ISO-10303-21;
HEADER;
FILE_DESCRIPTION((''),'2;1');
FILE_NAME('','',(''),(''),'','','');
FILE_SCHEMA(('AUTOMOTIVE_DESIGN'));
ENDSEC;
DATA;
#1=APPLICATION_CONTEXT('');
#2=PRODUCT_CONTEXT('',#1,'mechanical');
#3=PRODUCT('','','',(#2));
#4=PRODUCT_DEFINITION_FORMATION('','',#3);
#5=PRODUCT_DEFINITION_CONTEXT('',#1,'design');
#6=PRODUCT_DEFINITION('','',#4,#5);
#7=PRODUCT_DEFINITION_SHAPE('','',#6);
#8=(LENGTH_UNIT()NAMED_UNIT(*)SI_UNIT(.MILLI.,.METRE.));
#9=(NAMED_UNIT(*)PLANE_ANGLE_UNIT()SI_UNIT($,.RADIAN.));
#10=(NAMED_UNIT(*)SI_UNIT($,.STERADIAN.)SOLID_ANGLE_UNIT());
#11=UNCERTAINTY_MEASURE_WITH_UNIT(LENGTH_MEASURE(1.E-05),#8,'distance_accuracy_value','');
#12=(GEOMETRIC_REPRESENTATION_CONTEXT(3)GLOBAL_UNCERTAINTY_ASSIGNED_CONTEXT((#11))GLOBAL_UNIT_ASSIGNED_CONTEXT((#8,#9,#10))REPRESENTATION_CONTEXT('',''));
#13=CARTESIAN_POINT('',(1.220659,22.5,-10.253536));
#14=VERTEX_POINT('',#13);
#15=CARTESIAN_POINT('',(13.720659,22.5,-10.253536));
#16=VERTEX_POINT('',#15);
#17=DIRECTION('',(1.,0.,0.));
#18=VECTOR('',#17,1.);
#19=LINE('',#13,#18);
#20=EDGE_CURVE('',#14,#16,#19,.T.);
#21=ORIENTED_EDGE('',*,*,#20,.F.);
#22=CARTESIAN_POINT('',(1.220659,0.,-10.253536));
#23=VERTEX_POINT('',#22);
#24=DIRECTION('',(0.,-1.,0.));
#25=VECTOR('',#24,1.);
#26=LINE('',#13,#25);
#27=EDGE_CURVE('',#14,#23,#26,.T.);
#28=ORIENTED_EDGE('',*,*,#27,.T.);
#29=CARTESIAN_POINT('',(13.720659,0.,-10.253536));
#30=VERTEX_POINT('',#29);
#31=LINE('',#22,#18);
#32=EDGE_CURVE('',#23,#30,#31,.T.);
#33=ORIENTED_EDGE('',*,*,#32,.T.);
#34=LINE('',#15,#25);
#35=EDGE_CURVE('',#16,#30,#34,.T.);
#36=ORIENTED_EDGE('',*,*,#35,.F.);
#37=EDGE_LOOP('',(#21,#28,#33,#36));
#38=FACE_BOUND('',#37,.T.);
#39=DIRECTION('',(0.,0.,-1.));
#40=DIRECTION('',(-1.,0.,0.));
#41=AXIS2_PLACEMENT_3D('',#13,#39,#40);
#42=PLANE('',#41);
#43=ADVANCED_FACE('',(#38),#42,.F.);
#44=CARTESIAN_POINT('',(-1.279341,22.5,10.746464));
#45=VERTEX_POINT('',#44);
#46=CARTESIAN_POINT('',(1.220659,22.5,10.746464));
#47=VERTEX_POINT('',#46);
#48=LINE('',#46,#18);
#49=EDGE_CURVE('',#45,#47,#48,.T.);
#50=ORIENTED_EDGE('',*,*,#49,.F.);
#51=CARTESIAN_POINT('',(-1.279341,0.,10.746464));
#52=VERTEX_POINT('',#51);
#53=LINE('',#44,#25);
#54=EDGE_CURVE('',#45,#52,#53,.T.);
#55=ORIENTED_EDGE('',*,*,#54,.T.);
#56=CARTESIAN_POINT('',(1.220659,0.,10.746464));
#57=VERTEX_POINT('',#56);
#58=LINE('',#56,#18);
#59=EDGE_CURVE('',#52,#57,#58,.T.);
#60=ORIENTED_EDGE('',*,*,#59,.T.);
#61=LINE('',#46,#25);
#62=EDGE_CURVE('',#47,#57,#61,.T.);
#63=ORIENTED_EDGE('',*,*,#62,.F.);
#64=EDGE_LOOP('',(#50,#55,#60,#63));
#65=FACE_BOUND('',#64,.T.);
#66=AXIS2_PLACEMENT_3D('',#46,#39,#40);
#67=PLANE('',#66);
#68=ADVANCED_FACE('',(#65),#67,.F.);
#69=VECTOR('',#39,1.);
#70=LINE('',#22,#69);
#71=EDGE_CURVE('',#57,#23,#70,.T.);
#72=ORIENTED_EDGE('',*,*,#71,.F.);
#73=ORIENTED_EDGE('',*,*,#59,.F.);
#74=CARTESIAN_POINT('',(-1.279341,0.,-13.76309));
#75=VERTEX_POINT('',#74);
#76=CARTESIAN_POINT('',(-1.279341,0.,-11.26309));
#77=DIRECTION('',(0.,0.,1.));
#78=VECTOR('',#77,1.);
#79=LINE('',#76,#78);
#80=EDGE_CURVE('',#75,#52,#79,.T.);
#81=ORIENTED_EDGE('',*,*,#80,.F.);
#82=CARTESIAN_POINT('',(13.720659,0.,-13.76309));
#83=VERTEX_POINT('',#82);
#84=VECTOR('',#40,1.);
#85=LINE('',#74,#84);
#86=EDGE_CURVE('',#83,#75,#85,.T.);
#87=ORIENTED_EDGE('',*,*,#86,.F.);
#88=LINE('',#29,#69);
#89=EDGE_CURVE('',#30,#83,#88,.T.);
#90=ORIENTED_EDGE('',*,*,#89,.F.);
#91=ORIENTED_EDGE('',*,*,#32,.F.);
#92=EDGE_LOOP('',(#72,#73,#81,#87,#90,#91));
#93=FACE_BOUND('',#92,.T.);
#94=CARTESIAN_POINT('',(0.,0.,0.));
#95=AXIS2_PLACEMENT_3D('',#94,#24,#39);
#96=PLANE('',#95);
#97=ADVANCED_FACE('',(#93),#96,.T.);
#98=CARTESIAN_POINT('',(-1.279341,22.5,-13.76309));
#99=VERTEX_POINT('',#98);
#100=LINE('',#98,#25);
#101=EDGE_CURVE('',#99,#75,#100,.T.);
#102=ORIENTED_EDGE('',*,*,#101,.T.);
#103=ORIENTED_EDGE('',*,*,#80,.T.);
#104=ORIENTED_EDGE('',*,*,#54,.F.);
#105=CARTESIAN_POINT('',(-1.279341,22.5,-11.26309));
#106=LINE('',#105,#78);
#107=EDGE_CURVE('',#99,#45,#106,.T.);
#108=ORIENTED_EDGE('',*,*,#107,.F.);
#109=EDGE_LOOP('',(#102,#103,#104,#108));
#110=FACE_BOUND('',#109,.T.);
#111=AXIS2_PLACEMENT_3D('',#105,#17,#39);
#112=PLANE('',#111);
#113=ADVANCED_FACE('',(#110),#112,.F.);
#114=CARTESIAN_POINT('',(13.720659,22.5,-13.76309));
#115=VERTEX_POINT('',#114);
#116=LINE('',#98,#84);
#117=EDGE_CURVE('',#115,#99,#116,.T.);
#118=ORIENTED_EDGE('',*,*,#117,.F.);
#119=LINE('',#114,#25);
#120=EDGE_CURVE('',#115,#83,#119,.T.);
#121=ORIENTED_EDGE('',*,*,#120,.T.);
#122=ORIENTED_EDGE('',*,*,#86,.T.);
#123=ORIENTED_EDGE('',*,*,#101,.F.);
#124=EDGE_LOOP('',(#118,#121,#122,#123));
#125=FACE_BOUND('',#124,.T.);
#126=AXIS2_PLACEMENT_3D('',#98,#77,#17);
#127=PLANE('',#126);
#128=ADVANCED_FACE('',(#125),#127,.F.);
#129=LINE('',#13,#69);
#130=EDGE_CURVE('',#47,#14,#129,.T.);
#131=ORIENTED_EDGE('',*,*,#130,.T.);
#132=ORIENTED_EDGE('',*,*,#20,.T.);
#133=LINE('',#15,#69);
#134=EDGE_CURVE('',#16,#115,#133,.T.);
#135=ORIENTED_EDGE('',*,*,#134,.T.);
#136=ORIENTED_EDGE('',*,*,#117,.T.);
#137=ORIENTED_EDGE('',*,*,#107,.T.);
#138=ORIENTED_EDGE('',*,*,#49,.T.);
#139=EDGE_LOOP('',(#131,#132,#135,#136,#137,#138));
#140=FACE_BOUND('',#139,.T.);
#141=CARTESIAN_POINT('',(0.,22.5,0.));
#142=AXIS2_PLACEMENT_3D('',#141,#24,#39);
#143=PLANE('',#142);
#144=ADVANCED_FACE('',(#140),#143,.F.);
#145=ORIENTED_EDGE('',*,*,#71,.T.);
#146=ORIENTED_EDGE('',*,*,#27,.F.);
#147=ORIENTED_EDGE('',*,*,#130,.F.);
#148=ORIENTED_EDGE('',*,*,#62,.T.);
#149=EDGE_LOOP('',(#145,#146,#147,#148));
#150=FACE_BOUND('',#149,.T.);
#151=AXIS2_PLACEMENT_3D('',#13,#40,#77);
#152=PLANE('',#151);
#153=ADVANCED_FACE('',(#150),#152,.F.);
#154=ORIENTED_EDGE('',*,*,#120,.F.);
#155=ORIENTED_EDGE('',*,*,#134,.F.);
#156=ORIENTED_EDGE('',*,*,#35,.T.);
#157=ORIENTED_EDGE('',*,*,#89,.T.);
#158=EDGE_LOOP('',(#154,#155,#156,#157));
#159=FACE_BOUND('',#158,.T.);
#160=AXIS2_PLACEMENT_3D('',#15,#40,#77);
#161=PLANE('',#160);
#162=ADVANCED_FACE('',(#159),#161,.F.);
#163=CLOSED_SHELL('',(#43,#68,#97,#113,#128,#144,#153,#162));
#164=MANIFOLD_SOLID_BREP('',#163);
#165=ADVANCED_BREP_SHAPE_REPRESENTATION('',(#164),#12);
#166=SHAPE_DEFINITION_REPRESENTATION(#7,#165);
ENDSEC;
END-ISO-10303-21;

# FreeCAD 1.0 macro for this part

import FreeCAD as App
import Part
import Sketcher
from FreeCAD import Vector
Q = App.Units.Quantity

doc = App.newDocument("Part")
params = doc.addObject("Spreadsheet::Sheet", "Params")
for row, (alias, value) in enumerate([
    ("sketch1_width", "15 mm"),
    ("sketch1_height", "21 mm"),
    ("sketch1_width2", "12.5 mm"),
    ("pad1_length", "22.5 mm"),
], start=1):
    params.set(f"A{row}", alias)
    params.set(f"B{row}", "=" + value)
    params.setAlias(f"B{row}", alias)

body = doc.addObject("PartDesign::Body", "Body")

sketch1 = doc.addObject("Sketcher::SketchObject", "Sketch")
body.addObject(sketch1)
sketch1.AttachmentSupport = (doc.XZ_Plane, [""])
sketch1.MapMode = "FlatFace"
sketch1.addGeometry([
    Part.LineSegment(Vector(1.220659, 10.746464, 0), Vector(1.220659, -10.253536, 0)),
    Part.LineSegment(Vector(1.220659, -10.253536, 0), Vector(13.720659, -10.253536, 0)),
    Part.LineSegment(Vector(13.720659, -10.253536, 0), Vector(13.720659, -13.76309, 0)),
    Part.LineSegment(Vector(13.720659, -13.76309, 0), Vector(-1.279341, -13.76309, 0)),
    Part.LineSegment(Vector(-1.279341, -13.76309, 0), Vector(-1.279341, 10.746464, 0)),
    Part.LineSegment(Vector(-1.279341, 10.746464, 0), Vector(1.220659, 10.746464, 0)),
], False)
sketch1.addConstraint([
    Sketcher.Constraint("Coincident", 0, 2, 1, 1),
    Sketcher.Constraint("Coincident", 1, 2, 2, 1),
    Sketcher.Constraint("Coincident", 2, 2, 3, 1),
    Sketcher.Constraint("Coincident", 3, 2, 4, 1),
    Sketcher.Constraint("Coincident", 4, 2, 5, 1),
    Sketcher.Constraint("Coincident", 5, 2, 0, 1),
    Sketcher.Constraint("Vertical", 0),
    Sketcher.Constraint("Horizontal", 1),
    Sketcher.Constraint("Vertical", 2),
    Sketcher.Constraint("Horizontal", 3),
    Sketcher.Constraint("Vertical", 4),
    Sketcher.Constraint("Horizontal", 5),
    Sketcher.Constraint("DistanceX", 3, 2, 3, 1, Q("15 mm")),
    Sketcher.Constraint("DistanceY", 0, 2, 0, 1, Q("21 mm")),
    Sketcher.Constraint("DistanceX", 1, 1, 1, 2, Q("12.5 mm")),
    Sketcher.Constraint("DistanceY", 2, 2, 2, 1, Q("3.509555 mm")),
    Sketcher.Constraint("DistanceX", -1, 1, 0, 2, Q("1.220659 mm")),
    Sketcher.Constraint("DistanceY", 2, 2, -1, 1, Q("13.76309 mm")),
])
sketch1.setExpression("Constraints[12]", "Params.sketch1_width")
sketch1.setExpression("Constraints[13]", "Params.sketch1_height")
sketch1.setExpression("Constraints[14]", "Params.sketch1_width2")
pad1 = doc.addObject("PartDesign::Pad", "Pad")
body.addObject(pad1)
pad1.Profile = sketch1
pad1.setExpression("Length", "Params.pad1_length")
pad1.Reversed = True

doc.recompute()
